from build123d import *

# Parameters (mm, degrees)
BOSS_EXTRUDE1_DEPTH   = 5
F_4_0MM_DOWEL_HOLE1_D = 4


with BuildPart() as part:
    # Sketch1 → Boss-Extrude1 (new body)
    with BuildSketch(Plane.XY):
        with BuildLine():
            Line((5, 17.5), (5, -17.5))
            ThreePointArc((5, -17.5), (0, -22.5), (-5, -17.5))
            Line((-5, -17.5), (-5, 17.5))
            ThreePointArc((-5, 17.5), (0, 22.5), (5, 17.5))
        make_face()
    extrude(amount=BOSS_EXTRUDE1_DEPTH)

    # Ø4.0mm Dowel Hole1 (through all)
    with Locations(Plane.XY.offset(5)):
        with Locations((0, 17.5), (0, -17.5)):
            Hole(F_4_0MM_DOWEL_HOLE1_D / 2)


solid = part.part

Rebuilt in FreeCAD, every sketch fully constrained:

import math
import FreeCAD as App
import Part
import Sketcher
from FreeCAD import Vector

doc = App.newDocument("Part")
params = doc.addObject("Spreadsheet::Sheet", "Params")
for row, (alias, value) in enumerate([
    ("sketch1_radius", "5 mm"),
    ("sketch1_height", "35 mm"),
    ("pad1_length", "5 mm"),
    ("sketch2_diameter", "4 mm"),
    ("hole_diameter", "4 mm"),
], start=1):
    params.set(f"A{row}", alias)
    params.set(f"B{row}", "=" + value)
    params.setAlias(f"B{row}", alias)

body = doc.addObject("PartDesign::Body", "Body")

sketch1 = doc.addObject("Sketcher::SketchObject", "Sketch")
body.addObject(sketch1)
sketch1.AttachmentSupport = (doc.XY_Plane, [""])
sketch1.MapMode = "FlatFace"
sketch1.addGeometry([
    Part.LineSegment(Vector(5, -18, 0), Vector(5, 18, 0)),
    Part.ArcOfCircle(Part.Circle(Vector(0, 18, 0), Vector(0, 0, 1), 5), math.radians(0), math.radians(180)),
    Part.LineSegment(Vector(-5, 18, 0), Vector(-5, -18, 0)),
    Part.ArcOfCircle(Part.Circle(Vector(0, -18, 0), Vector(0, 0, 1), 5), math.radians(180), math.radians(360)),
], False)
sketch1.addConstraint([
    Sketcher.Constraint("Tangent", 0, 2, 1, 1),
    Sketcher.Constraint("Tangent", 1, 2, 2, 1),
    Sketcher.Constraint("Tangent", 2, 2, 3, 1),
    Sketcher.Constraint("Tangent", 3, 2, 0, 1),
    Sketcher.Constraint("Vertical", 0),
    Sketcher.Constraint("Vertical", 2),
    Sketcher.Constraint("Symmetric", 1, 3, 3, 3, -1, 1),
    Sketcher.Constraint("Radius", 1, 5.0),
    Sketcher.Constraint("DistanceY", 0, 1, 0, 2, 35.0),
])
sketch1.setExpression("Constraints[7]", "Params.sketch1_radius")
sketch1.setExpression("Constraints[8]", "Params.sketch1_height")
pad1 = doc.addObject("PartDesign::Pad", "Pad")
body.addObject(pad1)
pad1.Profile = sketch1
pad1.setExpression("Length", "Params.pad1_length")

sketch2 = doc.addObject("Sketcher::SketchObject", "Sketch001")
body.addObject(sketch2)
sketch2.AttachmentSupport = (doc.XY_Plane, [""])
sketch2.MapMode = "FlatFace"
sketch2.AttachmentOffset = App.Placement(Vector(0, 0, 5), App.Rotation())
sketch2.addGeometry([
    Part.Circle(Vector(0, 17.5, 0), Vector(0, 0, 1), 2),
    Part.Circle(Vector(0, -17.5, 0), Vector(0, 0, 1), 2),
], False)
sketch2.addConstraint([
    Sketcher.Constraint("Equal", 0, 1),
    Sketcher.Constraint("Symmetric", 0, 3, 1, 3, -1, 1),
    Sketcher.Constraint("PointOnObject", 0, 3, -2),
    Sketcher.Constraint("Diameter", 0, 4.0),
    Sketcher.Constraint("DistanceY", 1, 3, 0, 3, 35.0),
])
sketch2.setExpression("Constraints[3]", "Params.sketch2_diameter")
doc.recompute()
hole = doc.addObject("PartDesign::Hole", "Hole")
body.addObject(hole)
hole.Profile = sketch2
hole.ThreadType = "None"
hole.setExpression("Diameter", "Params.hole_diameter")
hole.DepthType = "ThroughAll"

doc.recompute()
